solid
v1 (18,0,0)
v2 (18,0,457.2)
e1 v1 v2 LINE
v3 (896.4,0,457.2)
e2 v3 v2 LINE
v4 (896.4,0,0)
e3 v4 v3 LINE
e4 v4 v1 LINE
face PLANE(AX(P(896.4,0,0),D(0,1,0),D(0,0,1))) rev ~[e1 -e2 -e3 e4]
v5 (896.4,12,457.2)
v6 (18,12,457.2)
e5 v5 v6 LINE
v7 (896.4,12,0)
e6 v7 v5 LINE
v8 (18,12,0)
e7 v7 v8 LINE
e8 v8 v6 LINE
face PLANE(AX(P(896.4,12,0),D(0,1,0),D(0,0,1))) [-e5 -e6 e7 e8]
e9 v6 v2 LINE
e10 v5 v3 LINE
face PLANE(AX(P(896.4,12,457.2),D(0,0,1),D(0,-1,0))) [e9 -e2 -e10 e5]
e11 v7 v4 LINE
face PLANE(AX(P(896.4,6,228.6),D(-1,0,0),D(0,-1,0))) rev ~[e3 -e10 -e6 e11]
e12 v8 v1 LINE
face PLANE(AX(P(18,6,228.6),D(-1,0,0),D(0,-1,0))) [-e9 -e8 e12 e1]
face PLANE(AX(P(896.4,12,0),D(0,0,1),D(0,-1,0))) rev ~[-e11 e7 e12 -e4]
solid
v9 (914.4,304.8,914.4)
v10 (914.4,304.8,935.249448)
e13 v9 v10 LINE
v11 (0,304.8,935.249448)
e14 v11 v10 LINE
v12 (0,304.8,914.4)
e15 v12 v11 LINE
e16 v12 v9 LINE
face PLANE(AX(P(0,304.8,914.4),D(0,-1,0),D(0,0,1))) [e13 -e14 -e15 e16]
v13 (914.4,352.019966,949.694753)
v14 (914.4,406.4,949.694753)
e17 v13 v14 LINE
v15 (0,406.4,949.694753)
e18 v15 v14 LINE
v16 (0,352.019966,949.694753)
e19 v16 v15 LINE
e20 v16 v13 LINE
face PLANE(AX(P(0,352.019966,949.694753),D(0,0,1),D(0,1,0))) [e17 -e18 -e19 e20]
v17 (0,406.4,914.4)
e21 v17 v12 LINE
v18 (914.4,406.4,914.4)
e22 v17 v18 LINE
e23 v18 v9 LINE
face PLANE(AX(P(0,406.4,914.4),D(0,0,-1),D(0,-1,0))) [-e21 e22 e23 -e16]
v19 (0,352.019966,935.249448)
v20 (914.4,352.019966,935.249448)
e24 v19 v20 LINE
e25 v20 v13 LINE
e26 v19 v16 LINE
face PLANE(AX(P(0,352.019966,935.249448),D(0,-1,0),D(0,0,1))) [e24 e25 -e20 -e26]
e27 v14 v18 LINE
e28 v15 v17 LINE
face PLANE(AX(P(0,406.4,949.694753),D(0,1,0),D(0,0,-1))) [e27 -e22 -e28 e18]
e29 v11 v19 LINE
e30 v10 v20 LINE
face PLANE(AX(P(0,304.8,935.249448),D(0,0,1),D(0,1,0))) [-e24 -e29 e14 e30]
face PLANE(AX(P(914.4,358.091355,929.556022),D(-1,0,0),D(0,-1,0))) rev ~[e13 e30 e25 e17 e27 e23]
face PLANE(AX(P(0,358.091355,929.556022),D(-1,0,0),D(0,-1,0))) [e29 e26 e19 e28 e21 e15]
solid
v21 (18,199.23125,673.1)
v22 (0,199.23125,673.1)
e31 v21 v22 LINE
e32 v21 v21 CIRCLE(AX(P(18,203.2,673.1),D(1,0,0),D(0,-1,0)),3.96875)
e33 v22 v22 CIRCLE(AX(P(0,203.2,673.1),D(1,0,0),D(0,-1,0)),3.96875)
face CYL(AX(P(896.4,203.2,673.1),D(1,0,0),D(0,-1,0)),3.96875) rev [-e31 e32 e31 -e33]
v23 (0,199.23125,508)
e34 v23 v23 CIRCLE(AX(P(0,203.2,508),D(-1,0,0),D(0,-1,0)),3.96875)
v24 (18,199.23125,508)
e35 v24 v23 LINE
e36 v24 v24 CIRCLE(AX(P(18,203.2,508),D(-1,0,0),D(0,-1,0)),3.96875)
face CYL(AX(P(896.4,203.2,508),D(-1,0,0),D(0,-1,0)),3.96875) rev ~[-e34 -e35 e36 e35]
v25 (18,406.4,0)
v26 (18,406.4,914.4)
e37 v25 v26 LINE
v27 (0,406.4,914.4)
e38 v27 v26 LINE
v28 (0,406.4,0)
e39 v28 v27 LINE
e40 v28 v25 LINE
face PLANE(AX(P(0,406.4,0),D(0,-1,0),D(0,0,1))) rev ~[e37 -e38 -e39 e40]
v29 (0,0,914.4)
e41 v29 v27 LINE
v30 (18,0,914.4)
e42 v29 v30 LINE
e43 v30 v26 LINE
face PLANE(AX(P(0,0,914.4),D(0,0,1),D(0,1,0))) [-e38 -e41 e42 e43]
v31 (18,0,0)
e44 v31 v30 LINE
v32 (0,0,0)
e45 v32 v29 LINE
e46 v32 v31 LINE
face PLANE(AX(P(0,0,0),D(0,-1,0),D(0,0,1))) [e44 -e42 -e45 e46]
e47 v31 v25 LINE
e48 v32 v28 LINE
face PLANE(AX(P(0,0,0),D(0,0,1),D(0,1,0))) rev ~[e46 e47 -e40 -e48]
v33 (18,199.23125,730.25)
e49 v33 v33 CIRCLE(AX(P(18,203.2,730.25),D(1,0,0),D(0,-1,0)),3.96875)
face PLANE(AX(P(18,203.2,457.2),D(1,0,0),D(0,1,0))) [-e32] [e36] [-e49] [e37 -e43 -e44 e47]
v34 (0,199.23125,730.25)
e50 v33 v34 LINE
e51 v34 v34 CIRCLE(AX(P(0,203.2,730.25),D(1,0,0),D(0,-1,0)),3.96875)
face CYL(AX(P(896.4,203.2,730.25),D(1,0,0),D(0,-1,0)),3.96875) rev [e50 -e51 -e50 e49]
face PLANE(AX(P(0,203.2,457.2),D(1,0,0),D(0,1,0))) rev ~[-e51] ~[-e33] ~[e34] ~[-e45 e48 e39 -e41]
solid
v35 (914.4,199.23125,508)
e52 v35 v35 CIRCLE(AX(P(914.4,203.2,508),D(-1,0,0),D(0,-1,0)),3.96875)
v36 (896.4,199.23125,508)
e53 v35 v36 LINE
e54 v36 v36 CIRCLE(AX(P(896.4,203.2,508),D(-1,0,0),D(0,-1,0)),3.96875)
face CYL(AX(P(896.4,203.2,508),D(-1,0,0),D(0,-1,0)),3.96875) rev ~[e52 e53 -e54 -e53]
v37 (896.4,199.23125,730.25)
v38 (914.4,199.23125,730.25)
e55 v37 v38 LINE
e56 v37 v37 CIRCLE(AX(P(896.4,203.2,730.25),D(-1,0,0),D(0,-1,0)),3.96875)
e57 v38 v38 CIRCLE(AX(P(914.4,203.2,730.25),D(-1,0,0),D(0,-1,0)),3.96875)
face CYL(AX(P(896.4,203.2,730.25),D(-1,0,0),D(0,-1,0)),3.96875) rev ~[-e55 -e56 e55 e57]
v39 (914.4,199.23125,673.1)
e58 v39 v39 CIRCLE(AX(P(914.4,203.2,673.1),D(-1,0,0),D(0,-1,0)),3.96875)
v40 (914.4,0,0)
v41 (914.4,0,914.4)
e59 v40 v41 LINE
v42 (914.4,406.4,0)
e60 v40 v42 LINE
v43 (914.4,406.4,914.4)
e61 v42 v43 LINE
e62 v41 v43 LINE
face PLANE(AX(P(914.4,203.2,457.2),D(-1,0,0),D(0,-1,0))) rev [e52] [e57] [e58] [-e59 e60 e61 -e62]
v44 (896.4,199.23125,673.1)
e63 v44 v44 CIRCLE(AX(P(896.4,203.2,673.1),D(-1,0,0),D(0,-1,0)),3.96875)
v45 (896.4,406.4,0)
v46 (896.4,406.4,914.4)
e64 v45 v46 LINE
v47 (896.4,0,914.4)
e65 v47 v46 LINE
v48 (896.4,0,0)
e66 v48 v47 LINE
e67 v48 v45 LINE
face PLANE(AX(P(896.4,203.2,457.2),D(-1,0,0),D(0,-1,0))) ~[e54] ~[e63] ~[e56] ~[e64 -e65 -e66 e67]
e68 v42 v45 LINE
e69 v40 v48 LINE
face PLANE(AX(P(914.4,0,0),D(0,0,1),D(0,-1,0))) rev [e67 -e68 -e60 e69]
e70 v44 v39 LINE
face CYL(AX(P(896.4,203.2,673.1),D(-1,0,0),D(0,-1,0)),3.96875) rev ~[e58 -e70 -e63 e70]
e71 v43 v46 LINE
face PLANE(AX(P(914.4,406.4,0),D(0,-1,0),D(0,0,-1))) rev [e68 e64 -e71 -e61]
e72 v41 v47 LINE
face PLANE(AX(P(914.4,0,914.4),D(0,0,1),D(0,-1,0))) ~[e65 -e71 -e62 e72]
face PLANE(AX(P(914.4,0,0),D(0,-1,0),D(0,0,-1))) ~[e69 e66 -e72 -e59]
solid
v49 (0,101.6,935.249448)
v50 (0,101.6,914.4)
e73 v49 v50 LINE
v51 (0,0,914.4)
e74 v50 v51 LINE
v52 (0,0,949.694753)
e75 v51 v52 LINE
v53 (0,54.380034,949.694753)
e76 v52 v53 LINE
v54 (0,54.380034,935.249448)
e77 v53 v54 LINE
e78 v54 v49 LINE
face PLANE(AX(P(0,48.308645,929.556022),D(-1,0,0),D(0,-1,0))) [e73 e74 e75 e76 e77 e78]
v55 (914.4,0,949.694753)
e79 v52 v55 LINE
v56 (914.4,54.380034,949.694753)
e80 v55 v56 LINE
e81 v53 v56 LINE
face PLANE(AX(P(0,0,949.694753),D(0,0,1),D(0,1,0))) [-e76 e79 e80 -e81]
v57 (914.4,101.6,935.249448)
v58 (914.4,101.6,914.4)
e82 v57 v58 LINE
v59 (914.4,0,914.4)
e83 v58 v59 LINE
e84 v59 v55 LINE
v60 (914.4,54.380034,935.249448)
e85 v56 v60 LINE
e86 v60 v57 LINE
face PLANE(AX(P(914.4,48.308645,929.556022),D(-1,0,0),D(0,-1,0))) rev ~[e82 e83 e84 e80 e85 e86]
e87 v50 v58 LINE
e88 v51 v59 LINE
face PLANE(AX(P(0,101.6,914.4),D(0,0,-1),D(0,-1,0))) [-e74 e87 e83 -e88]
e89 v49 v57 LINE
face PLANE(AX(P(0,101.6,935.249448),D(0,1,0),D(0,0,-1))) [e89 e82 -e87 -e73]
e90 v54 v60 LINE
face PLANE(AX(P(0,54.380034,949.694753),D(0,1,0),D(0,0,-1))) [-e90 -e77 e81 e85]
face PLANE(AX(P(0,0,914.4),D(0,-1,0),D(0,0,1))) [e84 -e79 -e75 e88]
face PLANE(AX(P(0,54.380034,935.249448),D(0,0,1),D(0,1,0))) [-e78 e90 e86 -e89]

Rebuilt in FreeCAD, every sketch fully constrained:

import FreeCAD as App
import Part
import Sketcher

V = App.Vector
Q = App.Units.Quantity

doc = App.newDocument("Part")
body = doc.addObject("PartDesign::Body", "Body")

sketch1 = body.newObject("Sketcher::SketchObject", "Sketch")
sketch1.AttachmentSupport = (doc.getObject("YZ_Plane"), [""])
sketch1.MapMode = "FlatFace"
sketch1.addGeometry([
    Part.LineSegment(V(0, 914, 0), V(0, 0, 0)),
    Part.LineSegment(V(0, 0, 0), V(406, 0, 0)),
    Part.LineSegment(V(406, 0, 0), V(406, 914, 0)),
    Part.LineSegment(V(406, 914, 0), V(0, 914, 0)),
], False)
sketch1.addConstraint([
    Sketcher.Constraint("Coincident", 0, 2, 1, 1),
    Sketcher.Constraint("Coincident", 1, 2, 2, 1),
    Sketcher.Constraint("Coincident", 2, 2, 3, 1),
    Sketcher.Constraint("Coincident", 3, 2, 0, 1),
    Sketcher.Constraint("Vertical", 0),
    Sketcher.Constraint("Horizontal", 1),
    Sketcher.Constraint("Vertical", 2),
    Sketcher.Constraint("Horizontal", 3),
    Sketcher.Constraint("Coincident", 0, 2, -1, 1),
    Sketcher.Constraint("DistanceX", 1, 1, 1, 2, Q("16 in")),
    Sketcher.Constraint("DistanceY", 0, 2, 0, 1, Q("36 in")),
])
pad1 = body.newObject("PartDesign::Pad", "Pad")
pad1.Profile = sketch1
pad1.Length = 18
body2 = doc.addObject("PartDesign::Body", "Body001")
doc.recompute()

mirroring = doc.addObject("Part::Mirroring", "Mirroring")
mirroring.Source = body
mirroring.Base = V(457.2, 0, 0)
mirroring.Normal = V(1, 0, 0)
body2.BaseFeature = mirroring
doc.recompute()
body3 = doc.addObject("PartDesign::Body", "Body002")
body3.AllowCompound = True

sketch2 = body3.newObject("Sketcher::SketchObject", "Sketch001")
sketch2.AttachmentSupport = (doc.getObject("YZ_Plane002"), [""])
sketch2.MapMode = "FlatFace"
sketch2.AttachmentOffset = App.Placement(V(0, 0, 896.4), App.Rotation())
sketch2.addGeometry([
    Part.Circle(V(203.2, 730.2, 0), V(0, 0, 1), 4),
    Part.Circle(V(203.2, 673.1, 0), V(0, 0, 1), 4),
    Part.Circle(V(203.2, 508, 0), V(0, 0, 1), 4),
], False)
sketch2.addConstraint([
    Sketcher.Constraint("Equal", 0, 1),
    Sketcher.Constraint("Equal", 1, 2),
    Sketcher.Constraint("Vertical", 0, 3, 1, 3),
    Sketcher.Constraint("Vertical", 1, 3, 2, 3),
    Sketcher.Constraint("Diameter", 0, Q("0.3125 in")),
    Sketcher.Constraint("DistanceX", -1, 1, 0, 3, Q("8 in")),
    Sketcher.Constraint("DistanceY", -1, 1, 2, 3, Q("20 in")),
    Sketcher.Constraint("DistanceY", -1, 1, 1, 3, Q("26.5 in")),
    Sketcher.Constraint("DistanceY", -1, 1, 0, 3, Q("28.75 in")),
])
pad2 = body3.newObject("PartDesign::Pad", "Pad001")
pad2.Profile = sketch2
pad2.Length = Q("80 in")
pad2.Midplane = True
doc.recompute()

body4 = doc.addObject("PartDesign::Body", "Body003")
body4.BaseFeature = body3
boolean = body.newObject("PartDesign::Boolean", "Boolean")
boolean.Type = "Cut"
boolean.addObjects([body4])
doc.recompute()

boolean2 = body2.newObject("PartDesign::Boolean", "Boolean001")
boolean2.Type = "Cut"
boolean2.addObjects([body3])
body5 = doc.addObject("PartDesign::Body", "Body004")

sketch3 = body5.newObject("Sketcher::SketchObject", "Sketch002")
sketch3.AttachmentSupport = (doc.getObject("YZ_Plane004"), [""])
sketch3.MapMode = "FlatFace"
sketch3.addGeometry([
    Part.LineSegment(V(102, 914, 0), V(0, 914, 0)),
    Part.LineSegment(V(0, 914, 0), V(0, 950, 0)),
    Part.LineSegment(V(0, 950, 0), V(54, 950, 0)),
    Part.LineSegment(V(54, 950, 0), V(54, 935, 0)),
    Part.LineSegment(V(54, 935, 0), V(102, 935, 0)),
    Part.LineSegment(V(102, 935, 0), V(102, 914, 0)),
], False)
sketch3.addConstraint([
    Sketcher.Constraint("Coincident", 0, 2, 1, 1),
    Sketcher.Constraint("Coincident", 1, 2, 2, 1),
    Sketcher.Constraint("Coincident", 2, 2, 3, 1),
    Sketcher.Constraint("Coincident", 3, 2, 4, 1),
    Sketcher.Constraint("Coincident", 4, 2, 5, 1),
    Sketcher.Constraint("Coincident", 5, 2, 0, 1),
    Sketcher.Constraint("Horizontal", 0),
    Sketcher.Constraint("Vertical", 1),
    Sketcher.Constraint("Horizontal", 2),
    Sketcher.Constraint("Vertical", 3),
    Sketcher.Constraint("Horizontal", 4),
    Sketcher.Constraint("Vertical", 5),
    Sketcher.Constraint("PointOnObject", 0, 2, -2),
    Sketcher.Constraint("DistanceX", 0, 2, 0, 1, Q("4 in")),
    Sketcher.Constraint("DistanceY", -1, 1, 0, 2, Q("36 in")),
    Sketcher.Constraint("DistanceX", 2, 1, 2, 2, Q("54.380034 mm")),
    Sketcher.Constraint("DistanceY", 1, 1, 1, 2, Q("35.294753 mm")),
    Sketcher.Constraint("DistanceY", 3, 2, 3, 1, Q("14.445305 mm")),
])
pad3 = body5.newObject("PartDesign::Pad", "Pad002")
pad3.Profile = sketch3
pad3.Length = Q("36 in")
body6 = doc.addObject("PartDesign::Body", "Body005")

sketch4 = body6.newObject("Sketcher::SketchObject", "Sketch003")
sketch4.AttachmentSupport = (doc.getObject("YZ_Plane005"), [""])
sketch4.MapMode = "FlatFace"
sketch4.addGeometry([
    Part.LineSegment(V(406, 950, 0), V(406, 914, 0)),
    Part.LineSegment(V(406, 914, 0), V(305, 914, 0)),
    Part.LineSegment(V(305, 914, 0), V(305, 935, 0)),
    Part.LineSegment(V(305, 935, 0), V(352, 935, 0)),
    Part.LineSegment(V(352, 935, 0), V(352, 950, 0)),
    Part.LineSegment(V(352, 950, 0), V(406, 950, 0)),
], False)
sketch4.addConstraint([
    Sketcher.Constraint("Coincident", 0, 2, 1, 1),
    Sketcher.Constraint("Coincident", 1, 2, 2, 1),
    Sketcher.Constraint("Coincident", 2, 2, 3, 1),
    Sketcher.Constraint("Coincident", 3, 2, 4, 1),
    Sketcher.Constraint("Coincident", 4, 2, 5, 1),
    Sketcher.Constraint("Coincident", 5, 2, 0, 1),
    Sketcher.Constraint("Vertical", 0),
    Sketcher.Constraint("Horizontal", 1),
    Sketcher.Constraint("Vertical", 2),
    Sketcher.Constraint("Horizontal", 3),
    Sketcher.Constraint("Vertical", 4),
    Sketcher.Constraint("Horizontal", 5),
    Sketcher.Constraint("DistanceX", 1, 2, 1, 1, Q("4 in")),
    Sketcher.Constraint("DistanceX", -1, 1, 0, 2, Q("16 in")),
    Sketcher.Constraint("DistanceY", -1, 1, 0, 2, Q("36 in")),
    Sketcher.Constraint("DistanceX", 3, 1, 3, 2, Q("47.219966 mm")),
    Sketcher.Constraint("DistanceY", 0, 2, 0, 1, Q("35.294753 mm")),
    Sketcher.Constraint("DistanceY", 2, 1, 2, 2, Q("20.849448 mm")),
])
pad4 = body6.newObject("PartDesign::Pad", "Pad003")
pad4.Profile = sketch4
pad4.Length = Q("36 in")
body7 = doc.addObject("PartDesign::Body", "Body006")

sketch5 = body7.newObject("Sketcher::SketchObject", "Sketch004")
sketch5.AttachmentSupport = (doc.getObject("YZ_Plane006"), [""])
sketch5.MapMode = "FlatFace"
sketch5.AttachmentOffset = App.Placement(V(0, 0, 896.4), App.Rotation())
sketch5.addGeometry([
    Part.LineSegment(V(12, 457, 0), V(12, 0, 0)),
    Part.LineSegment(V(12, 0, 0), V(0, 0, 0)),
    Part.LineSegment(V(0, 0, 0), V(0, 457, 0)),
    Part.LineSegment(V(0, 457, 0), V(12, 457, 0)),
], False)
sketch5.addConstraint([
    Sketcher.Constraint("Coincident", 0, 2, 1, 1),
    Sketcher.Constraint("Coincident", 1, 2, 2, 1),
    Sketcher.Constraint("Coincident", 2, 2, 3, 1),
    Sketcher.Constraint("Coincident", 3, 2, 0, 1),
    Sketcher.Constraint("Vertical", 0),
    Sketcher.Constraint("Horizontal", 1),
    Sketcher.Constraint("Vertical", 2),
    Sketcher.Constraint("Horizontal", 3),
    Sketcher.Constraint("Coincident", 1, 2, -1, 1),
    Sketcher.Constraint("DistanceY", 0, 2, 0, 1, Q("18 in")),
    Sketcher.Constraint("DistanceX", 1, 2, 1, 1, Q("12 mm")),
])
pad5 = body7.newObject("PartDesign::Pad", "Pad004")
pad5.Profile = sketch5
pad5.Length = 878.4
pad5.Reversed = True
mirroring.Visibility = False

doc.recompute()
